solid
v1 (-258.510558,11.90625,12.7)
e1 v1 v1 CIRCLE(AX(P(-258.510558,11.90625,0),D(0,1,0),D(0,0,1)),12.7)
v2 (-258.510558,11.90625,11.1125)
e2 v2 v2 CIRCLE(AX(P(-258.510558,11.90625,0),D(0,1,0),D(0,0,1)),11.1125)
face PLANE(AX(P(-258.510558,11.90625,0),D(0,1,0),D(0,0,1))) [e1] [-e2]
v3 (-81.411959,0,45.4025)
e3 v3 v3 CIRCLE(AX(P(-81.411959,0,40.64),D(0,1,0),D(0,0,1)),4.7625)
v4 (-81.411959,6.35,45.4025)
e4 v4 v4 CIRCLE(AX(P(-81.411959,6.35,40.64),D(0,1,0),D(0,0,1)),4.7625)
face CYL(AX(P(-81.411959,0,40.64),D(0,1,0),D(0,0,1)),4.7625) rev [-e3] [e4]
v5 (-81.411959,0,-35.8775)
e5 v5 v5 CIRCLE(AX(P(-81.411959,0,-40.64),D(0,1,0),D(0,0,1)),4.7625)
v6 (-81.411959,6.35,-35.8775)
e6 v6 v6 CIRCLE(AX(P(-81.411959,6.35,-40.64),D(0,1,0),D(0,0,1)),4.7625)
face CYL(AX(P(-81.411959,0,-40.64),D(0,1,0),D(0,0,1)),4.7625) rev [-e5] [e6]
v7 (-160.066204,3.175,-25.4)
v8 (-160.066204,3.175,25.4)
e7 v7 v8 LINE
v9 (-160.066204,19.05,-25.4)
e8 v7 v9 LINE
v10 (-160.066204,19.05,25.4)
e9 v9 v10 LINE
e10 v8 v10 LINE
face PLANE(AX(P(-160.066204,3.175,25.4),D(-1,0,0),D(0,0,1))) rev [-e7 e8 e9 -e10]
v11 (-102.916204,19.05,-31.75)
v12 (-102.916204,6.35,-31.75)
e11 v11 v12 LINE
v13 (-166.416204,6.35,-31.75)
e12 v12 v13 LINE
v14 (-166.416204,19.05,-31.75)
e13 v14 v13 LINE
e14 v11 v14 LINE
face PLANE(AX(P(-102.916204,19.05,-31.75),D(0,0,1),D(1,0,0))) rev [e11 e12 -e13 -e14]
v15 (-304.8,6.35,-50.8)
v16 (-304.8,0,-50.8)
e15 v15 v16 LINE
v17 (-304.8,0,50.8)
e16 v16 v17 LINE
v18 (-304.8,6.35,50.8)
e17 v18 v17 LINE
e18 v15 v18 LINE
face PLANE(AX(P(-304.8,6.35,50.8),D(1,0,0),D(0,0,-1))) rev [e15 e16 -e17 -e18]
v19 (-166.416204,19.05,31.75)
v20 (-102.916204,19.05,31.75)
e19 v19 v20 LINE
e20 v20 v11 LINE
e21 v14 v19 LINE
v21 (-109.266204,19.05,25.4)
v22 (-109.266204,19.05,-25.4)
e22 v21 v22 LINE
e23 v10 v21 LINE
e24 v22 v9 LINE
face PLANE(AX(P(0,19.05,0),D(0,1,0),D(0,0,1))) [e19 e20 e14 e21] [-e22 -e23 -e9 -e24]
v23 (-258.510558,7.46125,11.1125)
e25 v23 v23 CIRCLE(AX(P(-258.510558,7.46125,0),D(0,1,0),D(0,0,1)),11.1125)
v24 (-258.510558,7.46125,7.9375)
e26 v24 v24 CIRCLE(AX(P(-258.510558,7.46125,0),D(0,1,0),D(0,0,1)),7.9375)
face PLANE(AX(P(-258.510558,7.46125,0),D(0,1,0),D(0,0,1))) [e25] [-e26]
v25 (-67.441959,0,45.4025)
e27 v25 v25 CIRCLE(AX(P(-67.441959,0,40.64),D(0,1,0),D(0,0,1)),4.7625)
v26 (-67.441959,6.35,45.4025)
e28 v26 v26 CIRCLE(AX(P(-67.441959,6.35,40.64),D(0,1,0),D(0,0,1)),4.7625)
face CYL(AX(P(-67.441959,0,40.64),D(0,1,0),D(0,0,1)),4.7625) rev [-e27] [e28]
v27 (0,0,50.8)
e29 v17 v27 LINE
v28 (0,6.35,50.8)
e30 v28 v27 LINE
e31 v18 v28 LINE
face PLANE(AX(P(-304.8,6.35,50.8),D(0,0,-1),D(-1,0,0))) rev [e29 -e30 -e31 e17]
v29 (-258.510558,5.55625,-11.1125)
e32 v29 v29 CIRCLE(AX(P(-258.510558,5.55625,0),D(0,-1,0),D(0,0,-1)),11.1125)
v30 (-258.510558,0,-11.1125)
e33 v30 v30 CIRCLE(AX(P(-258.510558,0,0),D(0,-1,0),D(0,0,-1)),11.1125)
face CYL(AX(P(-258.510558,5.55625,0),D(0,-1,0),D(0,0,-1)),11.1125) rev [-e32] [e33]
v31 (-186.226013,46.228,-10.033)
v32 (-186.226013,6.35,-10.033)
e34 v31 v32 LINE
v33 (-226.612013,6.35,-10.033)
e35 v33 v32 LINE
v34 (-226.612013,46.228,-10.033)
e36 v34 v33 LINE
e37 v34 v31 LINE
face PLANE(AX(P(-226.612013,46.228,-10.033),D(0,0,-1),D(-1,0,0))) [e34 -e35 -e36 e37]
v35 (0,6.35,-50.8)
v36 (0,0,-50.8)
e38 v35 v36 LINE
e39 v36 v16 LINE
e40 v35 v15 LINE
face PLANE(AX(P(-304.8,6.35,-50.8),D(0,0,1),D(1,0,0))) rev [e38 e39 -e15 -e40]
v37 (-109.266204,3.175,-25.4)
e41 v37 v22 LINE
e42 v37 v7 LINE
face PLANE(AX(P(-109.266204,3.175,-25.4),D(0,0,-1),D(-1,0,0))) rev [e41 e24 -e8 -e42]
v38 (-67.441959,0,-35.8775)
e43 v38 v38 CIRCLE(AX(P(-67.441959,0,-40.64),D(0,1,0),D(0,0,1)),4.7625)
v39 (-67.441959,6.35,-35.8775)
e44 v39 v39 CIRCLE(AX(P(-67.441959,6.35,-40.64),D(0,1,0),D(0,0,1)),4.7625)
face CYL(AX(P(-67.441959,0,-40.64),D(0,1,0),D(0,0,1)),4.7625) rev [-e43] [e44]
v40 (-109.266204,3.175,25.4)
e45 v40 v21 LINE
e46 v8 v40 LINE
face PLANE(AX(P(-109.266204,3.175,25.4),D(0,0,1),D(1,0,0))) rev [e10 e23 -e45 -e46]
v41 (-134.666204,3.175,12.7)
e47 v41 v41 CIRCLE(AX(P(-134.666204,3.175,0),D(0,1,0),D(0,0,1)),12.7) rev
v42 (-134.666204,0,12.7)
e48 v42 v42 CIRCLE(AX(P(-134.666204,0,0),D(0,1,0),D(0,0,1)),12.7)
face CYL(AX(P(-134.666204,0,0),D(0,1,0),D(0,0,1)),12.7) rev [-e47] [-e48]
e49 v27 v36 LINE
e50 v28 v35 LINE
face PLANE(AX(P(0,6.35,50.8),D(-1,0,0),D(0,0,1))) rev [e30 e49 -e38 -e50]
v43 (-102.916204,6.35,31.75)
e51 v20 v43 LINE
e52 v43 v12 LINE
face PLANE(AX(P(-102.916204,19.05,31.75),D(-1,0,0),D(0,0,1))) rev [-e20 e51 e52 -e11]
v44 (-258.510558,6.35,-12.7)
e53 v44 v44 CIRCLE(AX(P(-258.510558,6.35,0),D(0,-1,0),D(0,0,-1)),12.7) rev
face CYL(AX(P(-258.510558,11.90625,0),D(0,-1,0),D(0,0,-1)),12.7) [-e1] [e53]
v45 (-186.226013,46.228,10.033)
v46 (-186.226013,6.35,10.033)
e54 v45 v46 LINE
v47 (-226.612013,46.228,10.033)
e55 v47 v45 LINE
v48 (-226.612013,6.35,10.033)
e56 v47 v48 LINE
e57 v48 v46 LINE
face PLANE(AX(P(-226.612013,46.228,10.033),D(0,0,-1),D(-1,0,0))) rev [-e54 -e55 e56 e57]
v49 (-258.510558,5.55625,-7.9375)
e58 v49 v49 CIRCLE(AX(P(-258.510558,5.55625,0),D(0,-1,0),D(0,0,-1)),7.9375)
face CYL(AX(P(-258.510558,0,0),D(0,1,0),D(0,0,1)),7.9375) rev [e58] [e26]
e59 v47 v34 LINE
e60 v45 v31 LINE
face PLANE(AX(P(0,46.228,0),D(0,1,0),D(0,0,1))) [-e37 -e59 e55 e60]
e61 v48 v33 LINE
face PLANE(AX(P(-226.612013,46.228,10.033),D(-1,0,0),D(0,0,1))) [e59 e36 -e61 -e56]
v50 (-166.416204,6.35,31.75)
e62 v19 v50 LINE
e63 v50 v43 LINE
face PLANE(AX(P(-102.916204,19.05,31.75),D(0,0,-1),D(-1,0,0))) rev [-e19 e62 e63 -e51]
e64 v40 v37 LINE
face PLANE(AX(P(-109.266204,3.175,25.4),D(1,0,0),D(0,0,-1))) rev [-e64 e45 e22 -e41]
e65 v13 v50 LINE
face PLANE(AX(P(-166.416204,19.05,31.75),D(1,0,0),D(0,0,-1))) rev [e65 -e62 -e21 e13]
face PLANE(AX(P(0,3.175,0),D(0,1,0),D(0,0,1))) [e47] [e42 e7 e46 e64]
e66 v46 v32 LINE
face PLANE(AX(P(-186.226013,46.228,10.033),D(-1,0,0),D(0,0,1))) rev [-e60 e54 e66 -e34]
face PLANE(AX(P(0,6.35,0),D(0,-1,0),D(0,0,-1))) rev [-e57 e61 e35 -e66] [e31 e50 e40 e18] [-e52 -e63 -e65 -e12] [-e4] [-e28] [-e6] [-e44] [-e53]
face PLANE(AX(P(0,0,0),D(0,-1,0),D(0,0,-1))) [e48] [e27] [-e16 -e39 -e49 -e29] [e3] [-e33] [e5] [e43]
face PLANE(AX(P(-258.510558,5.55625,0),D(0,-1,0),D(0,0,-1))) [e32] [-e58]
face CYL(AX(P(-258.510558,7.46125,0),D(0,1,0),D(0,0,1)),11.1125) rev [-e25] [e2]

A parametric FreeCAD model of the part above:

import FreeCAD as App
import Part
import Sketcher
Q = App.Units.Quantity

doc = App.newDocument("Part")
params = doc.addObject("Spreadsheet::Sheet", "Params")
for row, (alias, value) in enumerate([
    ("sketch1_width", "12 in"),
    ("sketch1_height", "4 in"),
    ("pad1_length", "0.25 in"),
    ("sketch2_diameter", "1 in"),
    ("pad2_length", "0.21875 in"),
    ("sketch3_diameter", "0.875 in"),
    ("pocket1_length", "0.175 in"),
    ("sketch4_diameter", "0.875 in"),
    ("pocket2_length", "0.21875 in"),
    ("sketch5_diameter", "0.625 in"),
    ("sketch6_diameter", "1 in"),
    ("sketch7_width", "2.5 in"),
    ("pad3_length", "0.5 in"),
    ("sketch8_width", "2 in"),
    ("pocket5_length", "0.625 in"),
    ("sketch9_width", "1.59 in"),
    ("sketch9_height", "0.79 in"),
    ("pad4_length", "1.57 in"),
    ("sketch10_diameter", "0.375 in"),
    ("pocket6_length", "0.25 in"),
], start=1):
    params.set(f"A{row}", alias)
    params.set(f"B{row}", "=" + value)
    params.setAlias(f"B{row}", alias)

body = doc.addObject("PartDesign::Body", "Body")

sketch1 = doc.addObject("Sketcher::SketchObject", "Sketch")
body.addObject(sketch1)
sketch1.AttachmentSupport = (doc.XZ_Plane, [""])
sketch1.MapMode = "FlatFace"
sketch1.addGeometry([
    Part.LineSegment(App.Vector(-305, -51, 0), App.Vector(-305, 51, 0)),
    Part.LineSegment(App.Vector(-305, 51, 0), App.Vector(0, 51, 0)),
    Part.LineSegment(App.Vector(0, 51, 0), App.Vector(0, -51, 0)),
    Part.LineSegment(App.Vector(0, -51, 0), App.Vector(-305, -51, 0)),
], False)
sketch1.addConstraint([
    Sketcher.Constraint("Coincident", 0, 2, 1, 1),
    Sketcher.Constraint("Coincident", 1, 2, 2, 1),
    Sketcher.Constraint("Coincident", 2, 2, 3, 1),
    Sketcher.Constraint("Coincident", 3, 2, 0, 1),
    Sketcher.Constraint("Vertical", 0),
    Sketcher.Constraint("Horizontal", 1),
    Sketcher.Constraint("Vertical", 2),
    Sketcher.Constraint("Horizontal", 3),
    Sketcher.Constraint("Symmetric", 1, 2, 2, 2, -1, 1),
    Sketcher.Constraint("DistanceX", 1, 1, 1, 2, Q("12 in")),
    Sketcher.Constraint("DistanceY", 0, 1, 0, 2, Q("4 in")),
])
sketch1.setExpression("Constraints[9]", "Params.sketch1_width")
sketch1.setExpression("Constraints[10]", "Params.sketch1_height")
pad1 = doc.addObject("PartDesign::Pad", "Pad")
body.addObject(pad1)
pad1.Profile = sketch1
pad1.setExpression("Length", "Params.pad1_length")
pad1.Reversed = True

sketch2 = doc.addObject("Sketcher::SketchObject", "Sketch001")
body.addObject(sketch2)
sketch2.AttachmentSupport = (doc.XZ_Plane, [""])
sketch2.MapMode = "FlatFace"
sketch2.AttachmentOffset = App.Placement(App.Vector(0, 0, -0.25 * 25.4), App.Rotation())
sketch2.addGeometry(Part.Circle(App.Vector(-259, 0, 0), App.Vector(0, 0, 1), 13), False)
sketch2.addConstraint([
    Sketcher.Constraint("PointOnObject", 0, 3, -1),
    Sketcher.Constraint("Diameter", 0, Q("1 in")),
    Sketcher.Constraint("DistanceX", 0, 3, -1, 1, 258.510558),
])
sketch2.setExpression("Constraints[1]", "Params.sketch2_diameter")
pad2 = doc.addObject("PartDesign::Pad", "Pad001")
body.addObject(pad2)
pad2.Profile = sketch2
pad2.setExpression("Length", "Params.pad2_length")
pad2.Reversed = True

sketch3 = doc.addObject("Sketcher::SketchObject", "Sketch002")
body.addObject(sketch3)
sketch3.AttachmentSupport = (doc.XZ_Plane, [""])
sketch3.MapMode = "FlatFace"
sketch3.AttachmentOffset = App.Placement(App.Vector(0, 0, -0.46875 * 25.4), App.Rotation())
sketch3.addGeometry(Part.Circle(App.Vector(-259, 0, 0), App.Vector(0, 0, 1), 11), False)
sketch3.addConstraint([
    Sketcher.Constraint("PointOnObject", 0, 3, -1),
    Sketcher.Constraint("Diameter", 0, Q("0.875 in")),
    Sketcher.Constraint("DistanceX", 0, 3, -1, 1, 258.510558),
])
sketch3.setExpression("Constraints[1]", "Params.sketch3_diameter")
pocket1 = doc.addObject("PartDesign::Pocket", "Pocket")
body.addObject(pocket1)
pocket1.Profile = sketch3
pocket1.setExpression("Length", "Params.pocket1_length")
pocket1.Reversed = True

sketch4 = doc.addObject("Sketcher::SketchObject", "Sketch003")
body.addObject(sketch4)
sketch4.AttachmentSupport = (doc.XZ_Plane, [""])
sketch4.MapMode = "FlatFace"
sketch4.AttachmentOffset = App.Placement(App.Vector(0, 0, -0.21875 * 25.4), App.Rotation())
sketch4.addGeometry(Part.Circle(App.Vector(-259, 0, 0), App.Vector(0, 0, 1), 11), False)
sketch4.addConstraint([
    Sketcher.Constraint("PointOnObject", 0, 3, -1),
    Sketcher.Constraint("Diameter", 0, Q("0.875 in")),
    Sketcher.Constraint("DistanceX", 0, 3, -1, 1, 258.510558),
])
sketch4.setExpression("Constraints[1]", "Params.sketch4_diameter")
pocket2 = doc.addObject("PartDesign::Pocket", "Pocket001")
body.addObject(pocket2)
pocket2.Profile = sketch4
pocket2.setExpression("Length", "Params.pocket2_length")
pocket2.Reversed = True

sketch5 = doc.addObject("Sketcher::SketchObject", "Sketch004")
body.addObject(sketch5)
sketch5.AttachmentSupport = (doc.XZ_Plane, [""])
sketch5.MapMode = "FlatFace"
sketch5.AttachmentOffset = App.Placement(App.Vector(0, 0, -7.46125), App.Rotation())
sketch5.addGeometry(Part.Circle(App.Vector(-259, 0, 0), App.Vector(0, 0, 1), 8), False)
sketch5.addConstraint([
    Sketcher.Constraint("PointOnObject", 0, 3, -1),
    Sketcher.Constraint("Diameter", 0, Q("0.625 in")),
    Sketcher.Constraint("DistanceX", 0, 3, -1, 1, 258.510558),
])
sketch5.setExpression("Constraints[1]", "Params.sketch5_diameter")
pocket3 = doc.addObject("PartDesign::Pocket", "Pocket002")
body.addObject(pocket3)
pocket3.Profile = sketch5
pocket3.Type = "ThroughAll"
pocket3.Reversed = True

sketch6 = doc.addObject("Sketcher::SketchObject", "Sketch005")
body.addObject(sketch6)
sketch6.AttachmentSupport = (doc.XZ_Plane, [""])
sketch6.MapMode = "FlatFace"
sketch6.AttachmentOffset = App.Placement(App.Vector(0, 0, -0.25 * 25.4), App.Rotation())
sketch6.addGeometry(Part.Circle(App.Vector(-135, 0, 0), App.Vector(0, 0, 1), 13), False)
sketch6.addConstraint([
    Sketcher.Constraint("PointOnObject", 0, 3, -1),
    Sketcher.Constraint("Diameter", 0, Q("1 in")),
    Sketcher.Constraint("DistanceX", 0, 3, -1, 1, 134.666204),
])
sketch6.setExpression("Constraints[1]", "Params.sketch6_diameter")
pocket4 = doc.addObject("PartDesign::Pocket", "Pocket003")
body.addObject(pocket4)
pocket4.Profile = sketch6
pocket4.Type = "ThroughAll"
pocket4.Reversed = True

sketch7 = doc.addObject("Sketcher::SketchObject", "Sketch006")
body.addObject(sketch7)
sketch7.AttachmentSupport = (doc.XZ_Plane, [""])
sketch7.MapMode = "FlatFace"
sketch7.AttachmentOffset = App.Placement(App.Vector(0, 0, -0.25 * 25.4), App.Rotation())
sketch7.addGeometry([
    Part.LineSegment(App.Vector(-166, -32, 0), App.Vector(-166, 32, 0)),
    Part.LineSegment(App.Vector(-166, 32, 0), App.Vector(-103, 32, 0)),
    Part.LineSegment(App.Vector(-103, 32, 0), App.Vector(-103, -32, 0)),
    Part.LineSegment(App.Vector(-103, -32, 0), App.Vector(-166, -32, 0)),
], False)
sketch7.addConstraint([
    Sketcher.Constraint("Coincident", 0, 2, 1, 1),
    Sketcher.Constraint("Coincident", 1, 2, 2, 1),
    Sketcher.Constraint("Coincident", 2, 2, 3, 1),
    Sketcher.Constraint("Coincident", 3, 2, 0, 1),
    Sketcher.Constraint("Vertical", 0),
    Sketcher.Constraint("Horizontal", 1),
    Sketcher.Constraint("Vertical", 2),
    Sketcher.Constraint("Horizontal", 3),
    Sketcher.Constraint("Equal", 3, 0),
    Sketcher.Constraint("DistanceX", 1, 1, 1, 2, Q("2.5 in")),
    Sketcher.Constraint("DistanceY", -1, 1, 0, 2, Q("1.25 in")),
    Sketcher.Constraint("DistanceX", 0, 2, -1, 1, 166.416204),
])
sketch7.setExpression("Constraints[9]", "Params.sketch7_width")
pad3 = doc.addObject("PartDesign::Pad", "Pad002")
body.addObject(pad3)
pad3.Profile = sketch7
pad3.setExpression("Length", "Params.pad3_length")
pad3.Reversed = True

sketch8 = doc.addObject("Sketcher::SketchObject", "Sketch007")
body.addObject(sketch8)
sketch8.AttachmentSupport = (doc.XZ_Plane, [""])
sketch8.MapMode = "FlatFace"
sketch8.AttachmentOffset = App.Placement(App.Vector(0, 0, -0.75 * 25.4), App.Rotation())
sketch8.addGeometry([
    Part.LineSegment(App.Vector(-160, -25, 0), App.Vector(-160, 25, 0)),
    Part.LineSegment(App.Vector(-160, 25, 0), App.Vector(-109, 25, 0)),
    Part.LineSegment(App.Vector(-109, 25, 0), App.Vector(-109, -25, 0)),
    Part.LineSegment(App.Vector(-109, -25, 0), App.Vector(-160, -25, 0)),
], False)
sketch8.addConstraint([
    Sketcher.Constraint("Coincident", 0, 2, 1, 1),
    Sketcher.Constraint("Coincident", 1, 2, 2, 1),
    Sketcher.Constraint("Coincident", 2, 2, 3, 1),
    Sketcher.Constraint("Coincident", 3, 2, 0, 1),
    Sketcher.Constraint("Vertical", 0),
    Sketcher.Constraint("Horizontal", 1),
    Sketcher.Constraint("Vertical", 2),
    Sketcher.Constraint("Horizontal", 3),
    Sketcher.Constraint("Equal", 3, 0),
    Sketcher.Constraint("DistanceX", 1, 1, 1, 2, Q("2 in")),
    Sketcher.Constraint("DistanceY", -1, 1, 0, 2, Q("1 in")),
    Sketcher.Constraint("DistanceX", 0, 2, -1, 1, 160.066204),
])
sketch8.setExpression("Constraints[9]", "Params.sketch8_width")
pocket5 = doc.addObject("PartDesign::Pocket", "Pocket004")
body.addObject(pocket5)
pocket5.Profile = sketch8
pocket5.setExpression("Length", "Params.pocket5_length")
pocket5.Reversed = True

sketch9 = doc.addObject("Sketcher::SketchObject", "Sketch008")
body.addObject(sketch9)
sketch9.AttachmentSupport = (doc.XZ_Plane, [""])
sketch9.MapMode = "FlatFace"
sketch9.AttachmentOffset = App.Placement(App.Vector(0, 0, -0.25 * 25.4), App.Rotation())
sketch9.addGeometry([
    Part.LineSegment(App.Vector(-227, -10, 0), App.Vector(-227, 10, 0)),
    Part.LineSegment(App.Vector(-227, 10, 0), App.Vector(-186, 10, 0)),
    Part.LineSegment(App.Vector(-186, 10, 0), App.Vector(-186, -10, 0)),
    Part.LineSegment(App.Vector(-186, -10, 0), App.Vector(-227, -10, 0)),
], False)
sketch9.addConstraint([
    Sketcher.Constraint("Coincident", 0, 2, 1, 1),
    Sketcher.Constraint("Coincident", 1, 2, 2, 1),
    Sketcher.Constraint("Coincident", 2, 2, 3, 1),
    Sketcher.Constraint("Coincident", 3, 2, 0, 1),
    Sketcher.Constraint("Vertical", 0),
    Sketcher.Constraint("Horizontal", 1),
    Sketcher.Constraint("Vertical", 2),
    Sketcher.Constraint("Horizontal", 3),
    Sketcher.Constraint("DistanceX", 1, 1, 1, 2, Q("1.59 in")),
    Sketcher.Constraint("DistanceY", 0, 1, 0, 2, Q("0.79 in")),
    Sketcher.Constraint("DistanceY", -1, 1, 0, 2, Q("0.395 in")),
    Sketcher.Constraint("DistanceX", 0, 2, -1, 1, 226.612013),
])
sketch9.setExpression("Constraints[8]", "Params.sketch9_width")
sketch9.setExpression("Constraints[9]", "Params.sketch9_height")
pad4 = doc.addObject("PartDesign::Pad", "Pad003")
body.addObject(pad4)
pad4.Profile = sketch9
pad4.setExpression("Length", "Params.pad4_length")
pad4.Reversed = True

sketch10 = doc.addObject("Sketcher::SketchObject", "Sketch009")
body.addObject(sketch10)
sketch10.AttachmentSupport = (doc.XZ_Plane, [""])
sketch10.MapMode = "FlatFace"
sketch10.AttachmentOffset = App.Placement(App.Vector(0, 0, -0.25 * 25.4), App.Rotation())
sketch10.addGeometry([
    Part.Circle(App.Vector(-67.4, 40.6, 0), App.Vector(0, 0, 1), 4.8),
    Part.Circle(App.Vector(-81.4, 40.6, 0), App.Vector(0, 0, 1), 4.8),
    Part.Circle(App.Vector(-67.4, -40.6, 0), App.Vector(0, 0, 1), 4.8),
    Part.Circle(App.Vector(-81.4, -40.6, 0), App.Vector(0, 0, 1), 4.8),
], False)
sketch10.addConstraint([
    Sketcher.Constraint("Equal", 0, 1),
    Sketcher.Constraint("Equal", 1, 2),
    Sketcher.Constraint("Equal", 2, 3),
    Sketcher.Constraint("Symmetric", 0, 3, 2, 3, -1),
    Sketcher.Constraint("Symmetric", 1, 3, 3, 3, -1),
    Sketcher.Constraint("Horizontal", 0, 3, 1, 3),
    Sketcher.Constraint("Diameter", 0, Q("0.375 in")),
    Sketcher.Constraint("DistanceY", -1, 1, 0, 3, Q("1.6 in")),
    Sketcher.Constraint("DistanceX", 1, 3, 0, 3, Q("0.55 in")),
    Sketcher.Constraint("DistanceX", 0, 3, -1, 1, 67.441959),
])
sketch10.setExpression("Constraints[6]", "Params.sketch10_diameter")
pocket6 = doc.addObject("PartDesign::Pocket", "Pocket005")
body.addObject(pocket6)
pocket6.Profile = sketch10
pocket6.setExpression("Length", "Params.pocket6_length")
pocket6.Reversed = True

doc.recompute()
